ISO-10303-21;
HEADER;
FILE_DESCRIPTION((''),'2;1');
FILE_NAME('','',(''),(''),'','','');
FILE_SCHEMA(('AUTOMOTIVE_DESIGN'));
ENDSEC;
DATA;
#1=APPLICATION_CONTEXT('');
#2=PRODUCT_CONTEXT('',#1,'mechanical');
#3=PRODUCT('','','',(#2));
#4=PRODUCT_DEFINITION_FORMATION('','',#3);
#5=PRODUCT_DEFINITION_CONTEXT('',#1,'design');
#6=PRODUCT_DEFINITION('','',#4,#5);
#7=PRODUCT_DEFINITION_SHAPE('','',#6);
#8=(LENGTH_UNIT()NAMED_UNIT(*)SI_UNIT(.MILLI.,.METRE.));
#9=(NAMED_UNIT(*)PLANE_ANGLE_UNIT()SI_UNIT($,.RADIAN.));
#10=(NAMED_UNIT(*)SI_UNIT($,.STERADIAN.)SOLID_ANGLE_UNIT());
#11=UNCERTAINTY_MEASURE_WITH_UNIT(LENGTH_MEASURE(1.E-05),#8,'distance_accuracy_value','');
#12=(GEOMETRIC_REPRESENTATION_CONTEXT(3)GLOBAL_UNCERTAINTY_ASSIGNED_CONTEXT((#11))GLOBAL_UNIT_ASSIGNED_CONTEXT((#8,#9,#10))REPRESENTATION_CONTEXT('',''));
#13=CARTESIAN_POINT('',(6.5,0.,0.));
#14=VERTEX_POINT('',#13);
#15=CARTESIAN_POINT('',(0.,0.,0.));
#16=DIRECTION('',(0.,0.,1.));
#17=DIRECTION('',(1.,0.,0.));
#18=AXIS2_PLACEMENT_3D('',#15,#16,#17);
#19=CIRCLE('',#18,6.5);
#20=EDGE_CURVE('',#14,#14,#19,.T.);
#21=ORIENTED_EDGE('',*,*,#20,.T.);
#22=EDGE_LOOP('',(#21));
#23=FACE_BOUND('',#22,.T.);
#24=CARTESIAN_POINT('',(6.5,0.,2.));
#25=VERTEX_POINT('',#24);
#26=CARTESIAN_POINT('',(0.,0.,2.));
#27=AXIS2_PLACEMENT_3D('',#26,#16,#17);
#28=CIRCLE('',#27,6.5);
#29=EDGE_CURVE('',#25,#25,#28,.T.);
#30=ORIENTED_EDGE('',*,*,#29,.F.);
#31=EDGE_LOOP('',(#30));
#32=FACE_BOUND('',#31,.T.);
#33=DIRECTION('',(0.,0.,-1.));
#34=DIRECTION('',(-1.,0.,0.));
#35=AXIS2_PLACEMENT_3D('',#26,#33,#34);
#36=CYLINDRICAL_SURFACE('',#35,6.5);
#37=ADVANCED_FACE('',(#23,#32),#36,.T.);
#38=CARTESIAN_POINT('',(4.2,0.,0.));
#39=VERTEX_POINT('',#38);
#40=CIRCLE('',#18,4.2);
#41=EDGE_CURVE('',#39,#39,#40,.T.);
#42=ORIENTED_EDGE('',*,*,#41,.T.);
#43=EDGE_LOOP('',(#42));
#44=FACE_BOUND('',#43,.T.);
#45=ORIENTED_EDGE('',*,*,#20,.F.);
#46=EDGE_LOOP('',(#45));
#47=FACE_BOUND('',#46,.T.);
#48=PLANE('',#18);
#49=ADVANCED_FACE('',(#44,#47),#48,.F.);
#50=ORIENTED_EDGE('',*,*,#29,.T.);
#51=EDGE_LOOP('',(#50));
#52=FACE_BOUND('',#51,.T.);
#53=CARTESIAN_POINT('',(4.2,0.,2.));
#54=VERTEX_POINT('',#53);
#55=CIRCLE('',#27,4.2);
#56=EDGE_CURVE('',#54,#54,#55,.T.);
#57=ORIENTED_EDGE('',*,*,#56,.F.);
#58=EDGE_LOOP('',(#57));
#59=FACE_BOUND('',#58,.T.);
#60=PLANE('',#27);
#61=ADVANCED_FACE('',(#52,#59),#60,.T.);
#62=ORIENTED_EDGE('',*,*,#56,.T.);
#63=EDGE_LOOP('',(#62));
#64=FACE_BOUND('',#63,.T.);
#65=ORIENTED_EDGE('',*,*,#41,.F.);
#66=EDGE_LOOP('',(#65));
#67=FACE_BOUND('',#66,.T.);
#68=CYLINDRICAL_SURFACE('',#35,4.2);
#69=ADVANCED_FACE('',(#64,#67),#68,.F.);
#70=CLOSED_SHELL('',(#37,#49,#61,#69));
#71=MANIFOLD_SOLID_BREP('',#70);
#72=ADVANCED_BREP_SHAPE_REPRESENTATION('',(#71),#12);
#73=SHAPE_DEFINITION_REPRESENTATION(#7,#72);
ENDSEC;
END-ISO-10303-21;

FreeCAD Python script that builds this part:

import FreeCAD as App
import Part
import Sketcher

V = App.Vector

doc = App.newDocument("Part")
body = doc.addObject("PartDesign::Body", "Body")

# Sketch on XY plane
sketch1 = body.newObject("Sketcher::SketchObject", "Sketch")
sketch1.AttachmentSupport = (doc.getObject("XY_Plane"), [""])
sketch1.MapMode = "FlatFace"
sketch1.addGeometry([
    Part.Circle(V(0, 0, 0), V(0, 0, 1), 6.5),
    Part.Circle(V(0, 0, 0), V(0, 0, 1), 4.2),
], False)
sketch1.addConstraint([
    Sketcher.Constraint("Coincident", 0, 3, -1, 1),
    Sketcher.Constraint("Coincident", 1, 3, -1, 1),
    Sketcher.Constraint("Diameter", 0, 13.0),
    Sketcher.Constraint("Diameter", 1, 8.4),
])
pad1 = body.newObject("PartDesign::Pad", "Pad")
pad1.Profile = sketch1
pad1.Length = 2

doc.recompute()
